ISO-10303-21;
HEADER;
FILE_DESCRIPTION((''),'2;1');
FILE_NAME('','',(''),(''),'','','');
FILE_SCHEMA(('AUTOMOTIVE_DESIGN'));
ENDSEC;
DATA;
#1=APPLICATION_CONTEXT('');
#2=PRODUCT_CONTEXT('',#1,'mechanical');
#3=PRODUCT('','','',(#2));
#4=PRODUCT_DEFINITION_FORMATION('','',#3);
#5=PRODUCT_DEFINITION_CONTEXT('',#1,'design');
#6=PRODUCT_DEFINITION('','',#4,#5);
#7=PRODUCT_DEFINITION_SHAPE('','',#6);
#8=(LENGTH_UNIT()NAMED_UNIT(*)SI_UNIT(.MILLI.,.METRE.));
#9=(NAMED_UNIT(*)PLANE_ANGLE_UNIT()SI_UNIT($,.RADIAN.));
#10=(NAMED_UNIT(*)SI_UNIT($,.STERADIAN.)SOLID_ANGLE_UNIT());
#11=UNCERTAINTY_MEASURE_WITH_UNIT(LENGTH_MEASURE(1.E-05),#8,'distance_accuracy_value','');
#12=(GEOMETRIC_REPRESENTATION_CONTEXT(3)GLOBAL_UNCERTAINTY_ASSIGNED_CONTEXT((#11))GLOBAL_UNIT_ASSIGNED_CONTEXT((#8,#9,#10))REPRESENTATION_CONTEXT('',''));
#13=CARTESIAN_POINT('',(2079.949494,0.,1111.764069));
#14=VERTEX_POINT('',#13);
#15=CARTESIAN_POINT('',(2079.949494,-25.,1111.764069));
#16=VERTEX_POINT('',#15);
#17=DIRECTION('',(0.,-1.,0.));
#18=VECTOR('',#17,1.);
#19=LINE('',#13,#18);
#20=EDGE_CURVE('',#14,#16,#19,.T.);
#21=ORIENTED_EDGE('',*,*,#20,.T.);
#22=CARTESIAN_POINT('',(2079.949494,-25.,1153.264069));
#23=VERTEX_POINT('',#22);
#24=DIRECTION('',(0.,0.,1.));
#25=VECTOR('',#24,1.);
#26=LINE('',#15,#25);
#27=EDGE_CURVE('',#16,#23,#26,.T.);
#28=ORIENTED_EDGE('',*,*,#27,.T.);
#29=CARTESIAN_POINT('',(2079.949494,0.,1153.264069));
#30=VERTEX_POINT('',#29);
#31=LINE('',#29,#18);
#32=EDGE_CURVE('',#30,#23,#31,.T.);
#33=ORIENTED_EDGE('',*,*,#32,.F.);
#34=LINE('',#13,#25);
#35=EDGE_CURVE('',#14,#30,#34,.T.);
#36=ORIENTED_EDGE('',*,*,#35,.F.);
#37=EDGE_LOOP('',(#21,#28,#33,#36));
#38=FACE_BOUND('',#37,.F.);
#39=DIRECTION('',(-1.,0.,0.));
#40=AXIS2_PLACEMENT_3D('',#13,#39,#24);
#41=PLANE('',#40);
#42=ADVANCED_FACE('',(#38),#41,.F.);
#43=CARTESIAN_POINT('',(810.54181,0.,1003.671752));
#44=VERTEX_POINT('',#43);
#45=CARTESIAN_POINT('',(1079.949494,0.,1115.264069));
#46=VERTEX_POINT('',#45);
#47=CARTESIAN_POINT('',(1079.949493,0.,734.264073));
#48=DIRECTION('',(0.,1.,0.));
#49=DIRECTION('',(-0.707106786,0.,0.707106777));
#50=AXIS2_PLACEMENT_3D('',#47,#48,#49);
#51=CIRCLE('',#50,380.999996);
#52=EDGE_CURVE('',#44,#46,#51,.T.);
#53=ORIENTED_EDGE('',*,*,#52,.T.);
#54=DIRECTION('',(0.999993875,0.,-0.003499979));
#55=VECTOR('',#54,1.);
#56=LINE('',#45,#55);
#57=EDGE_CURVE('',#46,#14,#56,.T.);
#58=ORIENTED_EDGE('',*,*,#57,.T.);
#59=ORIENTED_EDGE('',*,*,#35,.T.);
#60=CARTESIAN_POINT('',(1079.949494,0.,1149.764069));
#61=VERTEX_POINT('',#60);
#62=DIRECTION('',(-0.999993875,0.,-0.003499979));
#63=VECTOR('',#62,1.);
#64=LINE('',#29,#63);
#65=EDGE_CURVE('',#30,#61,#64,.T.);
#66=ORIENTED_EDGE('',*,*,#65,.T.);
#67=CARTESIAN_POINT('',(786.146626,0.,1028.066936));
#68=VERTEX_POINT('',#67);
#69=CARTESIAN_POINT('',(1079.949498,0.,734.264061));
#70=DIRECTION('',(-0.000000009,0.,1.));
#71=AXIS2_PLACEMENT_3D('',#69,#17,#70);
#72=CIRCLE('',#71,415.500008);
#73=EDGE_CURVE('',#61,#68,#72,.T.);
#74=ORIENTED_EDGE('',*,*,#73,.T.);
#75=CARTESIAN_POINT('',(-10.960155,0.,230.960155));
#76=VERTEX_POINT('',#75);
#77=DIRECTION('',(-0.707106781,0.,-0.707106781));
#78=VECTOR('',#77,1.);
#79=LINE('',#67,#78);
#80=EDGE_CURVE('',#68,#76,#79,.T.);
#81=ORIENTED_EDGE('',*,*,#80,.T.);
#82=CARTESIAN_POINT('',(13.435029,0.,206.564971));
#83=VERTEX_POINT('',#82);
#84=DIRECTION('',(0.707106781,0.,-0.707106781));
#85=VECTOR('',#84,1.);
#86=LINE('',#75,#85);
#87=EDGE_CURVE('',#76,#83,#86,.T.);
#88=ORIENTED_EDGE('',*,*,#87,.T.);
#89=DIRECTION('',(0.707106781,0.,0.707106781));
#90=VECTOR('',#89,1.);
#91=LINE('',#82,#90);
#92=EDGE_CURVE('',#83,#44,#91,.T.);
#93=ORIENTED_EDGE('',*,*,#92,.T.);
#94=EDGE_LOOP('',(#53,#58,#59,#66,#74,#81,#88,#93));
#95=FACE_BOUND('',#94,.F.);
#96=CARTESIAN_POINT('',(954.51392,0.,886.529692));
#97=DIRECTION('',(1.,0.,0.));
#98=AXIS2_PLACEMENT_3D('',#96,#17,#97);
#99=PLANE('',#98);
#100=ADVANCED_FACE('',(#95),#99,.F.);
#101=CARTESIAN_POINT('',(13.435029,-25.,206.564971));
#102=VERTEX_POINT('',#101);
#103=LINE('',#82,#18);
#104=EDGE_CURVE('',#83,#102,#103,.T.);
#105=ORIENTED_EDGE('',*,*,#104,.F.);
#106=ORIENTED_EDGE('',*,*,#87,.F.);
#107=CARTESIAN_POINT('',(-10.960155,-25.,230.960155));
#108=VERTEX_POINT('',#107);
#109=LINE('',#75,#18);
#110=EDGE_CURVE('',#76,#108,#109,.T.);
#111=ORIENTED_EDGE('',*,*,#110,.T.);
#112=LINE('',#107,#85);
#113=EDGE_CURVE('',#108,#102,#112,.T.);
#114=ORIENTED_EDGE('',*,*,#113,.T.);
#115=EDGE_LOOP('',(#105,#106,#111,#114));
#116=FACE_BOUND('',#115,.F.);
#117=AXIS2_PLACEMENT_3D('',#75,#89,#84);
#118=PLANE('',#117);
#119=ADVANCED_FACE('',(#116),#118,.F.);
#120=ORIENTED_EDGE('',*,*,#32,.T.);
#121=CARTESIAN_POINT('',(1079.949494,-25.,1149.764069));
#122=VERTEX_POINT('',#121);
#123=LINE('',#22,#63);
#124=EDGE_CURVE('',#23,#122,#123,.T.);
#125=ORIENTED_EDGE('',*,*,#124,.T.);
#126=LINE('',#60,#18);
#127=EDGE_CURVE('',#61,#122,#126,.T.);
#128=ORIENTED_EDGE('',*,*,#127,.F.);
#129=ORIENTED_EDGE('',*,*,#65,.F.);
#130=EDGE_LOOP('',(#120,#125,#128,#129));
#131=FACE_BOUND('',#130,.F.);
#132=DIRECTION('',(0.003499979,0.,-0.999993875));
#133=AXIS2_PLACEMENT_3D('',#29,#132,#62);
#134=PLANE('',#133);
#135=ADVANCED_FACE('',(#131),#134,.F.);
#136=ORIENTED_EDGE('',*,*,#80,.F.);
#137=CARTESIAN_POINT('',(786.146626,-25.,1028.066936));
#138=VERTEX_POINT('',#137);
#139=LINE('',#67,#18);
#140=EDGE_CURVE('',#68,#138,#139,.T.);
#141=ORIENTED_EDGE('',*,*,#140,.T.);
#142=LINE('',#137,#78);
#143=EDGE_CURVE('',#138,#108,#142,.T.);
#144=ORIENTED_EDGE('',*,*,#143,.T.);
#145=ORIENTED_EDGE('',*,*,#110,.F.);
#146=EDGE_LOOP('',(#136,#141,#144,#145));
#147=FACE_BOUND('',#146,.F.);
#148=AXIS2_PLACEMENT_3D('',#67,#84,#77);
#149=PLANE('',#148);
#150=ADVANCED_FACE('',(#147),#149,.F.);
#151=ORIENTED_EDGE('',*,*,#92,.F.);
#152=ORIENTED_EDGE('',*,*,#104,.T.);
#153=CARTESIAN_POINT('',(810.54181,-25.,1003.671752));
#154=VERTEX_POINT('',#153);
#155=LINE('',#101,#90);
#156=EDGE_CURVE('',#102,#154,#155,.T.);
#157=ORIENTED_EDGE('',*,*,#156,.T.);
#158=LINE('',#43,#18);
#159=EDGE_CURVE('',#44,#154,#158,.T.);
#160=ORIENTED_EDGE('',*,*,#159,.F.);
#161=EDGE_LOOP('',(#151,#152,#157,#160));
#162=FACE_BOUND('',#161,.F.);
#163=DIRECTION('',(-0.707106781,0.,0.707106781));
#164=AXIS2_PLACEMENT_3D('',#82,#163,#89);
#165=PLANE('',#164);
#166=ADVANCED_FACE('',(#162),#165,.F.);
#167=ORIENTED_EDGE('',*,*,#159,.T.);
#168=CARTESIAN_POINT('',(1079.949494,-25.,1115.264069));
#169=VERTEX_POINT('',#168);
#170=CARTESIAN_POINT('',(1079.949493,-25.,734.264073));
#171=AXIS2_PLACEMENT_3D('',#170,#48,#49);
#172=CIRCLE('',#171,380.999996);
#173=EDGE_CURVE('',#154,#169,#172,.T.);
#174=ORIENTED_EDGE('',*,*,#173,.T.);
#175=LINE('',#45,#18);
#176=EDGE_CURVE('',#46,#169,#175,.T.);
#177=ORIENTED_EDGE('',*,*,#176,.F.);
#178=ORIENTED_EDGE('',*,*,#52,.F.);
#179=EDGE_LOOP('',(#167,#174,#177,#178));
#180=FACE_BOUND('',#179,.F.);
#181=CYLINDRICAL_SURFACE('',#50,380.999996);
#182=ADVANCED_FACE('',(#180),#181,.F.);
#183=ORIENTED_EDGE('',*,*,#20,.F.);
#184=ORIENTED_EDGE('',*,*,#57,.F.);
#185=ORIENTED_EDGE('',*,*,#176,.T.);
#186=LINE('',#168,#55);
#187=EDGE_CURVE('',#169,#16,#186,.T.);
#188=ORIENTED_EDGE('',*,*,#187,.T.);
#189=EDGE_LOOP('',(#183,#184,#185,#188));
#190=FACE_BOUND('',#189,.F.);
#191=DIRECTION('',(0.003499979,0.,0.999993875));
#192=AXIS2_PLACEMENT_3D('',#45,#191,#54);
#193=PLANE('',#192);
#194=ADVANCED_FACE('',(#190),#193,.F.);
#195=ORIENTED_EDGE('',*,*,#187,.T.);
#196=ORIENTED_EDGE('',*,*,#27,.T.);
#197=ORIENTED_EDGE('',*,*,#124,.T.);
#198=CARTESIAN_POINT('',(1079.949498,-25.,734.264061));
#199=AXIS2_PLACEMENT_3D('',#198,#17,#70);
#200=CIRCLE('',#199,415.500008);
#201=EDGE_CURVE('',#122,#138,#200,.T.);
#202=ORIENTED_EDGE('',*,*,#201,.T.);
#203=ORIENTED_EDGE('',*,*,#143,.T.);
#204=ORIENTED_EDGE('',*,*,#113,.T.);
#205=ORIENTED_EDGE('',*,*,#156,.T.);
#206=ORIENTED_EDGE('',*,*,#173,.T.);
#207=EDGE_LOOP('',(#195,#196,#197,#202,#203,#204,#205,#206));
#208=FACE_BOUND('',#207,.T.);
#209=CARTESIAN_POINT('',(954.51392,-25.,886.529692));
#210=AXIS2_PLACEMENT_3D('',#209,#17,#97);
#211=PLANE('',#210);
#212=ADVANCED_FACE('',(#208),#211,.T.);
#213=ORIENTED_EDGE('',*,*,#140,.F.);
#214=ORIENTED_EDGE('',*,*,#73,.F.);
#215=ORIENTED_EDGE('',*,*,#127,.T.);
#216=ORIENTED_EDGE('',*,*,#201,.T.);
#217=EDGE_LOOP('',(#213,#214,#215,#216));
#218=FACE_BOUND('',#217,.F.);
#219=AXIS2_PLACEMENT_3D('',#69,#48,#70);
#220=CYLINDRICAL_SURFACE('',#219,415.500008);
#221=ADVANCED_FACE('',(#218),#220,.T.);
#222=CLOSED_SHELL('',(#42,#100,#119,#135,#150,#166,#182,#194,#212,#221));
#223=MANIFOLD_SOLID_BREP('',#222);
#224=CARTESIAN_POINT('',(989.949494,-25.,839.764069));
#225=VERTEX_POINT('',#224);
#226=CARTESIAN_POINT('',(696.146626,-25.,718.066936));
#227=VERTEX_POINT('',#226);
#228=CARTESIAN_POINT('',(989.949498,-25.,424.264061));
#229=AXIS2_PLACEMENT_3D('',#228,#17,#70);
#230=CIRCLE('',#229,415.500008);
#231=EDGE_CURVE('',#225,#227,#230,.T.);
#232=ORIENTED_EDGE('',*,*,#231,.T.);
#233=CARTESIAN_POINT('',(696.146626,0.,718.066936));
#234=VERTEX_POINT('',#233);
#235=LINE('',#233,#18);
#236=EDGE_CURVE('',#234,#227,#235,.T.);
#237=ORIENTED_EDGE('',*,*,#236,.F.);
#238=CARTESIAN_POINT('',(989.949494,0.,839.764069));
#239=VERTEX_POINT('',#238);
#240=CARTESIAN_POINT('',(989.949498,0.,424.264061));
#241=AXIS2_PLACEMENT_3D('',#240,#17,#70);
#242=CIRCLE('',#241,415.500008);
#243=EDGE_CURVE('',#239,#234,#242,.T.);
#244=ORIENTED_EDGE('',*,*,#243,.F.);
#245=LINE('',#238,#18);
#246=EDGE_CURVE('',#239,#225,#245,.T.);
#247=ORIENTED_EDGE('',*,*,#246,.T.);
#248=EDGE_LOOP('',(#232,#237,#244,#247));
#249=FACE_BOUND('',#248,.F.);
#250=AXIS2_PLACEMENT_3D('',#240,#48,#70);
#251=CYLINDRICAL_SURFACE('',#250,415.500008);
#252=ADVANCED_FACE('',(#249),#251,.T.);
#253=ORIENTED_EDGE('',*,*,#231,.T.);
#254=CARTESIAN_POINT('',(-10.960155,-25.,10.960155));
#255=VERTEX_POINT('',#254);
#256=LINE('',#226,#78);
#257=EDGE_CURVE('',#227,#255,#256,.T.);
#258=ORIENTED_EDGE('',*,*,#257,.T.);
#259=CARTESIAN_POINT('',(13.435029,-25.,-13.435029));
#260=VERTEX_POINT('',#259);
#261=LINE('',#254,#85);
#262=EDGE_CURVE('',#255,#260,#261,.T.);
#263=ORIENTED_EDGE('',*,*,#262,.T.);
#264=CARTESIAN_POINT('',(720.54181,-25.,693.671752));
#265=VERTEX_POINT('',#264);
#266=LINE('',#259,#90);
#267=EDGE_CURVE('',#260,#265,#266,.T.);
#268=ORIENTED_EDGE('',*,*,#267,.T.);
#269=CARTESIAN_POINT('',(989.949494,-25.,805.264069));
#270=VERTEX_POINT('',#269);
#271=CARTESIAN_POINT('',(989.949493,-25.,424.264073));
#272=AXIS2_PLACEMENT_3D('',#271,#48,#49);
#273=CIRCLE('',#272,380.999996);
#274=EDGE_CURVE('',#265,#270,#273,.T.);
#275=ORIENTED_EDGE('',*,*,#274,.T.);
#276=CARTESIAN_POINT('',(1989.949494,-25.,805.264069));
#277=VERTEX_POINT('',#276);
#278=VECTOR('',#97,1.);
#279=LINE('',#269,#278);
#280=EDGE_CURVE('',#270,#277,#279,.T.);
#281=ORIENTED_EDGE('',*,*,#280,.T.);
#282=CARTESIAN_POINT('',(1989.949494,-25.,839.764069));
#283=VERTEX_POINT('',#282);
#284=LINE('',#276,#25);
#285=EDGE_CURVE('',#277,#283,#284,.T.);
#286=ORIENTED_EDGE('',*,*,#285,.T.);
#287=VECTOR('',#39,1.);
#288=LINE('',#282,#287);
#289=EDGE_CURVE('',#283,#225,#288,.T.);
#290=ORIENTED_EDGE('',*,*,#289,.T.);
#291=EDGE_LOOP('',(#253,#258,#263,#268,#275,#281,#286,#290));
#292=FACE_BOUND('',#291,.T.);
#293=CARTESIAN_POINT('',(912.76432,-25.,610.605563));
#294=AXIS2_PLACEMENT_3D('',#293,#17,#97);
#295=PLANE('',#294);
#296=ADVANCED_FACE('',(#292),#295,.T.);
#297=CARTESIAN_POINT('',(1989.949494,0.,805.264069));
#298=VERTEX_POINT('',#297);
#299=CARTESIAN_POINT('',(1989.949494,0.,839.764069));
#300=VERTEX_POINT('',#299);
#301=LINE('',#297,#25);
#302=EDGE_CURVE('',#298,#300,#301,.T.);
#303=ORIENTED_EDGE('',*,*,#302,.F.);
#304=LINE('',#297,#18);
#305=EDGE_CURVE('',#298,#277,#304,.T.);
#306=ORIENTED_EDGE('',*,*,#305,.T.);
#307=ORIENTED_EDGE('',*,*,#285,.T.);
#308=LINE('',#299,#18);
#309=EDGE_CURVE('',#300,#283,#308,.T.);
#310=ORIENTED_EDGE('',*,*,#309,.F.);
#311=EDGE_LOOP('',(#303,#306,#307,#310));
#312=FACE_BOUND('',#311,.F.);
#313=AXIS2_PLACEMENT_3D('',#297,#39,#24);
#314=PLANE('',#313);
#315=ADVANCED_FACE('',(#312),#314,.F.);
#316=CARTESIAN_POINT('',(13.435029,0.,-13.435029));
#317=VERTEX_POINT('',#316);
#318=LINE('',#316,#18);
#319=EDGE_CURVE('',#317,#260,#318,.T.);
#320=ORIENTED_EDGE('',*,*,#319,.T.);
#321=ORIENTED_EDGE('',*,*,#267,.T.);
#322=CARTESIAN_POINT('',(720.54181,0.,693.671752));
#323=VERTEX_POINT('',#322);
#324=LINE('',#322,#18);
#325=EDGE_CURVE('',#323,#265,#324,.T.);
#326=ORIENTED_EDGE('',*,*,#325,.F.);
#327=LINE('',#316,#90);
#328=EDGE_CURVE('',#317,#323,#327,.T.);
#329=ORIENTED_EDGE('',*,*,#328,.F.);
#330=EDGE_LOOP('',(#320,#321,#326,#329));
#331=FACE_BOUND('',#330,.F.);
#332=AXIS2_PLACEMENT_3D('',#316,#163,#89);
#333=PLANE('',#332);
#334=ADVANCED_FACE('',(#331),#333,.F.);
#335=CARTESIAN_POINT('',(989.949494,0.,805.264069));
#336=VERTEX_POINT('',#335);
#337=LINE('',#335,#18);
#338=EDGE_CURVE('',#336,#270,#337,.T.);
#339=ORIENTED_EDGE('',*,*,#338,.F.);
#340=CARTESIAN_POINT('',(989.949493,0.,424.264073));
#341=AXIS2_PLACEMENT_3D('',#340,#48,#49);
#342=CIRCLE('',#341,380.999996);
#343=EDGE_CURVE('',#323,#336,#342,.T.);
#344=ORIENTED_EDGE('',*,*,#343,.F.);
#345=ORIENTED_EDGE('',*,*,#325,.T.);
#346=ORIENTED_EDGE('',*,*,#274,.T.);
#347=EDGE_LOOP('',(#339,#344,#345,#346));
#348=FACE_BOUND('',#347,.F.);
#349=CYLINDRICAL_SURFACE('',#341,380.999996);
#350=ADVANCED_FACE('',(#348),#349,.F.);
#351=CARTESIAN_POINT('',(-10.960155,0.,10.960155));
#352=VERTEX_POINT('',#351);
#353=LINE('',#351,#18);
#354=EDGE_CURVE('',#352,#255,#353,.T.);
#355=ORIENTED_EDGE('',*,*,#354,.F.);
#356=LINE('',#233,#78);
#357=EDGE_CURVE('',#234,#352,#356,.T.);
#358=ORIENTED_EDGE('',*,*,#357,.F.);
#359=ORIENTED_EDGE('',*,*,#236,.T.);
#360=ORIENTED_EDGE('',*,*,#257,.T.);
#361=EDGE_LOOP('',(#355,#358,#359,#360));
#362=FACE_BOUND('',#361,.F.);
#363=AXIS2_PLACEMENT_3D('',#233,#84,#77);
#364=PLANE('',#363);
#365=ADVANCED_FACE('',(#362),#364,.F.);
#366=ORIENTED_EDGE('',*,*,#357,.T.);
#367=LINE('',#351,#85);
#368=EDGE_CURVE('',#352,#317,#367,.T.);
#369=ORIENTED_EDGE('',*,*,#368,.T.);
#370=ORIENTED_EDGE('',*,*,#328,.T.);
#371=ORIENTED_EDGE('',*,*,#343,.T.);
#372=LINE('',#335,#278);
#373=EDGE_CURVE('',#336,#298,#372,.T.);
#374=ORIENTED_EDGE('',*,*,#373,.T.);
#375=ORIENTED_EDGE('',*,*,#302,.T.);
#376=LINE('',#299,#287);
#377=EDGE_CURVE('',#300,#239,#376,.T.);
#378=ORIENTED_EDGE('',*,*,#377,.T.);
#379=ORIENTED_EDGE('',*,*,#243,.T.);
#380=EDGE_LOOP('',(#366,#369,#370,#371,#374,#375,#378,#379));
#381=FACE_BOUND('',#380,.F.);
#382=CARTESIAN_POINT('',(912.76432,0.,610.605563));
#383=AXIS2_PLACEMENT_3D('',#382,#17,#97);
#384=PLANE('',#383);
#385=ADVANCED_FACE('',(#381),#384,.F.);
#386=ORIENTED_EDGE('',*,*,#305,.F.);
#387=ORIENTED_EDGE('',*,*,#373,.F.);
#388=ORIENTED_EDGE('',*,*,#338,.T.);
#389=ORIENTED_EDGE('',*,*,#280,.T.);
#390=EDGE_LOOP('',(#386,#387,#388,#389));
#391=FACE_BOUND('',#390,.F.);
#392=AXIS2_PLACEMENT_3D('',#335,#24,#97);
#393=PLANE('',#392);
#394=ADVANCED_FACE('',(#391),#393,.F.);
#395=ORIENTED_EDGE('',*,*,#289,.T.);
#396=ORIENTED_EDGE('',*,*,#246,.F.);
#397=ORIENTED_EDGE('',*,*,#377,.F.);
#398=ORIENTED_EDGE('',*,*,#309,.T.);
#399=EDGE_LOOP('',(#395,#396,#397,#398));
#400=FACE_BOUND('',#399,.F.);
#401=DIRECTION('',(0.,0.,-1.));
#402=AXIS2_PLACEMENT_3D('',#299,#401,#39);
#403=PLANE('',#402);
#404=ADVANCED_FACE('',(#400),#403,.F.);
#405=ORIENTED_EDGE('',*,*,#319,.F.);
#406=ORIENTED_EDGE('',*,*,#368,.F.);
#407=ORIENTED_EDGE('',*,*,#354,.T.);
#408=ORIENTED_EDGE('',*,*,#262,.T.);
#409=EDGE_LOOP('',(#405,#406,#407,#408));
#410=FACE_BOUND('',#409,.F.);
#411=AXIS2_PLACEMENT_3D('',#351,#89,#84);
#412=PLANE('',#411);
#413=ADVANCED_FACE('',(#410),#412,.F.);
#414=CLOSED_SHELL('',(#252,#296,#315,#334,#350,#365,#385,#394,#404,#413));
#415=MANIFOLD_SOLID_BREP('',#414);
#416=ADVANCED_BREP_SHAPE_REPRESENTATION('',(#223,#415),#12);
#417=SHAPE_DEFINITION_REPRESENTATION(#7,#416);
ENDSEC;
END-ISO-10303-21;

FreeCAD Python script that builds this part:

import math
import FreeCAD as App
import Part
import Sketcher
from FreeCAD import Vector
Q = App.Units.Quantity

doc = App.newDocument("Part")
params = doc.addObject("Spreadsheet::Sheet", "Params")
for row, (alias, value) in enumerate([
    ("sketch1_width", "1000 mm"),
    ("sketch1_length", "1000 mm"),
    ("sketch1_height", "41.5 mm"),
    ("sketch1_height2", "34.5 mm"),
    ("pad1_length", "25 mm"),
], start=1):
    params.set(f"A{row}", alias)
    params.set(f"B{row}", "=" + value)
    params.setAlias(f"B{row}", alias)

body = doc.addObject("PartDesign::Body", "Body")
body.AllowCompound = True

sketch1 = doc.addObject("Sketcher::SketchObject", "Sketch")
body.addObject(sketch1)
sketch1.AttachmentSupport = (doc.XZ_Plane, [""])
sketch1.MapMode = "FlatFace"
sketch1.addGeometry([
    Part.LineSegment(Vector(786, 1028, 0), Vector(-11, 231, 0)),
    Part.LineSegment(Vector(-11, 231, 0), Vector(13, 207, 0)),
    Part.LineSegment(Vector(13, 207, 0), Vector(811, 1004, 0)),
    Part.ArcOfCircle(Part.Circle(Vector(1080, 734, 0), Vector(0, 0, 1), 381), math.radians(90), math.radians(135)),
    Part.LineSegment(Vector(1080, 1115, 0), Vector(2080, 1112, 0)),
    Part.LineSegment(Vector(2080, 1112, 0), Vector(2080, 1153, 0)),
    Part.LineSegment(Vector(2080, 1153, 0), Vector(1080, 1150, 0)),
    Part.ArcOfCircle(Part.Circle(Vector(1080, 734, 0), Vector(0, 0, 1), 416), math.radians(90), math.radians(135)),
    Part.LineSegment(Vector(-11, 11, 0), Vector(13, -13, 0)),
    Part.LineSegment(Vector(13, -13, 0), Vector(721, 694, 0)),
    Part.ArcOfCircle(Part.Circle(Vector(990, 424, 0), Vector(0, 0, 1), 381), math.radians(90), math.radians(135)),
    Part.LineSegment(Vector(990, 805, 0), Vector(1990, 805, 0)),
    Part.LineSegment(Vector(1990, 805, 0), Vector(1990, 840, 0)),
    Part.LineSegment(Vector(1990, 840, 0), Vector(990, 840, 0)),
    Part.ArcOfCircle(Part.Circle(Vector(990, 424, 0), Vector(0, 0, 1), 416), math.radians(90), math.radians(135)),
    Part.LineSegment(Vector(696, 718, 0), Vector(-11, 11, 0)),
], False)
sketch1.addConstraint([
    Sketcher.Constraint("Coincident", 0, 2, 1, 1),
    Sketcher.Constraint("Coincident", 1, 2, 2, 1),
    Sketcher.Constraint("Tangent", 2, 2, 3, 2),
    Sketcher.Constraint("Coincident", 3, 1, 4, 1),
    Sketcher.Constraint("Coincident", 4, 2, 5, 1),
    Sketcher.Constraint("Coincident", 5, 2, 6, 1),
    Sketcher.Constraint("Coincident", 6, 2, 7, 1),
    Sketcher.Constraint("Tangent", 7, 2, 0, 1),
    Sketcher.Constraint("Coincident", 8, 2, 9, 1),
    Sketcher.Constraint("Tangent", 9, 2, 10, 2),
    Sketcher.Constraint("Tangent", 10, 1, 11, 1),
    Sketcher.Constraint("Coincident", 11, 2, 12, 1),
    Sketcher.Constraint("Coincident", 12, 2, 13, 1),
    Sketcher.Constraint("Tangent", 13, 2, 14, 1),
    Sketcher.Constraint("Tangent", 14, 2, 15, 1),
    Sketcher.Constraint("Coincident", 15, 2, 8, 1),
    Sketcher.Constraint("Vertical", 5),
    Sketcher.Constraint("Horizontal", 11),
    Sketcher.Constraint("Vertical", 12),
    Sketcher.Constraint("Horizontal", 13),
    Sketcher.Constraint("Equal", 3, 10),
    Sketcher.Constraint("Equal", 7, 14),
    Sketcher.Constraint("Perpendicular", 0, 1),
    Sketcher.Constraint("Perpendicular", 1, 2),
    Sketcher.Constraint("Perpendicular", 2, 8),
    Sketcher.Constraint("Perpendicular", 8, 9),
    Sketcher.Constraint("Parallel", 9, 15),
    Sketcher.Constraint("Vertical", 3, 1, 6, 2),
    Sketcher.Constraint("Vertical", 1, 2, 8, 2),
    Sketcher.Constraint("Vertical", 0, 2, 15, 2),
    Sketcher.Constraint("Equal", 11, 13),
    Sketcher.Constraint("Equal", 0, 2),
    Sketcher.Constraint("Equal", 4, 6),
    Sketcher.Constraint("Equal", 9, 15),
    Sketcher.Constraint("DistanceX", 11, 1, 11, 2, 1000.0),
    Sketcher.Constraint("Angle", 0, Q("-135 deg")),
    Sketcher.Constraint("Distance", 9, 1000.0),
    Sketcher.Constraint("DistanceY", 5, 1, 5, 2, 41.5),
    Sketcher.Constraint("DistanceY", 12, 1, 12, 2, 34.5),
    Sketcher.Constraint("DistanceX", 10, 3, 3, 3, 90.0),
    Sketcher.Constraint("DistanceY", 10, 3, 3, 3, 310.0),
    Sketcher.Constraint("DistanceX", 3, 1, 4, 2, 1000.0),
    Sketcher.Constraint("DistanceX", 3, 3, 4, 2, 1000.000001),
    Sketcher.Constraint("Radius", 7, 415.500008),
    Sketcher.Constraint("DistanceY", -1, 1, 7, 3, 734.264061),
    Sketcher.Constraint("DistanceX", -1, 1, 1, 2, 13.435029),
])
sketch1.setExpression("Constraints[34]", "Params.sketch1_width")
sketch1.setExpression("Constraints[36]", "Params.sketch1_length")
sketch1.setExpression("Constraints[37]", "Params.sketch1_height")
sketch1.setExpression("Constraints[38]", "Params.sketch1_height2")
pad1 = doc.addObject("PartDesign::Pad", "Pad")
body.addObject(pad1)
pad1.Profile = sketch1
pad1.setExpression("Length", "Params.pad1_length")

doc.recompute()
